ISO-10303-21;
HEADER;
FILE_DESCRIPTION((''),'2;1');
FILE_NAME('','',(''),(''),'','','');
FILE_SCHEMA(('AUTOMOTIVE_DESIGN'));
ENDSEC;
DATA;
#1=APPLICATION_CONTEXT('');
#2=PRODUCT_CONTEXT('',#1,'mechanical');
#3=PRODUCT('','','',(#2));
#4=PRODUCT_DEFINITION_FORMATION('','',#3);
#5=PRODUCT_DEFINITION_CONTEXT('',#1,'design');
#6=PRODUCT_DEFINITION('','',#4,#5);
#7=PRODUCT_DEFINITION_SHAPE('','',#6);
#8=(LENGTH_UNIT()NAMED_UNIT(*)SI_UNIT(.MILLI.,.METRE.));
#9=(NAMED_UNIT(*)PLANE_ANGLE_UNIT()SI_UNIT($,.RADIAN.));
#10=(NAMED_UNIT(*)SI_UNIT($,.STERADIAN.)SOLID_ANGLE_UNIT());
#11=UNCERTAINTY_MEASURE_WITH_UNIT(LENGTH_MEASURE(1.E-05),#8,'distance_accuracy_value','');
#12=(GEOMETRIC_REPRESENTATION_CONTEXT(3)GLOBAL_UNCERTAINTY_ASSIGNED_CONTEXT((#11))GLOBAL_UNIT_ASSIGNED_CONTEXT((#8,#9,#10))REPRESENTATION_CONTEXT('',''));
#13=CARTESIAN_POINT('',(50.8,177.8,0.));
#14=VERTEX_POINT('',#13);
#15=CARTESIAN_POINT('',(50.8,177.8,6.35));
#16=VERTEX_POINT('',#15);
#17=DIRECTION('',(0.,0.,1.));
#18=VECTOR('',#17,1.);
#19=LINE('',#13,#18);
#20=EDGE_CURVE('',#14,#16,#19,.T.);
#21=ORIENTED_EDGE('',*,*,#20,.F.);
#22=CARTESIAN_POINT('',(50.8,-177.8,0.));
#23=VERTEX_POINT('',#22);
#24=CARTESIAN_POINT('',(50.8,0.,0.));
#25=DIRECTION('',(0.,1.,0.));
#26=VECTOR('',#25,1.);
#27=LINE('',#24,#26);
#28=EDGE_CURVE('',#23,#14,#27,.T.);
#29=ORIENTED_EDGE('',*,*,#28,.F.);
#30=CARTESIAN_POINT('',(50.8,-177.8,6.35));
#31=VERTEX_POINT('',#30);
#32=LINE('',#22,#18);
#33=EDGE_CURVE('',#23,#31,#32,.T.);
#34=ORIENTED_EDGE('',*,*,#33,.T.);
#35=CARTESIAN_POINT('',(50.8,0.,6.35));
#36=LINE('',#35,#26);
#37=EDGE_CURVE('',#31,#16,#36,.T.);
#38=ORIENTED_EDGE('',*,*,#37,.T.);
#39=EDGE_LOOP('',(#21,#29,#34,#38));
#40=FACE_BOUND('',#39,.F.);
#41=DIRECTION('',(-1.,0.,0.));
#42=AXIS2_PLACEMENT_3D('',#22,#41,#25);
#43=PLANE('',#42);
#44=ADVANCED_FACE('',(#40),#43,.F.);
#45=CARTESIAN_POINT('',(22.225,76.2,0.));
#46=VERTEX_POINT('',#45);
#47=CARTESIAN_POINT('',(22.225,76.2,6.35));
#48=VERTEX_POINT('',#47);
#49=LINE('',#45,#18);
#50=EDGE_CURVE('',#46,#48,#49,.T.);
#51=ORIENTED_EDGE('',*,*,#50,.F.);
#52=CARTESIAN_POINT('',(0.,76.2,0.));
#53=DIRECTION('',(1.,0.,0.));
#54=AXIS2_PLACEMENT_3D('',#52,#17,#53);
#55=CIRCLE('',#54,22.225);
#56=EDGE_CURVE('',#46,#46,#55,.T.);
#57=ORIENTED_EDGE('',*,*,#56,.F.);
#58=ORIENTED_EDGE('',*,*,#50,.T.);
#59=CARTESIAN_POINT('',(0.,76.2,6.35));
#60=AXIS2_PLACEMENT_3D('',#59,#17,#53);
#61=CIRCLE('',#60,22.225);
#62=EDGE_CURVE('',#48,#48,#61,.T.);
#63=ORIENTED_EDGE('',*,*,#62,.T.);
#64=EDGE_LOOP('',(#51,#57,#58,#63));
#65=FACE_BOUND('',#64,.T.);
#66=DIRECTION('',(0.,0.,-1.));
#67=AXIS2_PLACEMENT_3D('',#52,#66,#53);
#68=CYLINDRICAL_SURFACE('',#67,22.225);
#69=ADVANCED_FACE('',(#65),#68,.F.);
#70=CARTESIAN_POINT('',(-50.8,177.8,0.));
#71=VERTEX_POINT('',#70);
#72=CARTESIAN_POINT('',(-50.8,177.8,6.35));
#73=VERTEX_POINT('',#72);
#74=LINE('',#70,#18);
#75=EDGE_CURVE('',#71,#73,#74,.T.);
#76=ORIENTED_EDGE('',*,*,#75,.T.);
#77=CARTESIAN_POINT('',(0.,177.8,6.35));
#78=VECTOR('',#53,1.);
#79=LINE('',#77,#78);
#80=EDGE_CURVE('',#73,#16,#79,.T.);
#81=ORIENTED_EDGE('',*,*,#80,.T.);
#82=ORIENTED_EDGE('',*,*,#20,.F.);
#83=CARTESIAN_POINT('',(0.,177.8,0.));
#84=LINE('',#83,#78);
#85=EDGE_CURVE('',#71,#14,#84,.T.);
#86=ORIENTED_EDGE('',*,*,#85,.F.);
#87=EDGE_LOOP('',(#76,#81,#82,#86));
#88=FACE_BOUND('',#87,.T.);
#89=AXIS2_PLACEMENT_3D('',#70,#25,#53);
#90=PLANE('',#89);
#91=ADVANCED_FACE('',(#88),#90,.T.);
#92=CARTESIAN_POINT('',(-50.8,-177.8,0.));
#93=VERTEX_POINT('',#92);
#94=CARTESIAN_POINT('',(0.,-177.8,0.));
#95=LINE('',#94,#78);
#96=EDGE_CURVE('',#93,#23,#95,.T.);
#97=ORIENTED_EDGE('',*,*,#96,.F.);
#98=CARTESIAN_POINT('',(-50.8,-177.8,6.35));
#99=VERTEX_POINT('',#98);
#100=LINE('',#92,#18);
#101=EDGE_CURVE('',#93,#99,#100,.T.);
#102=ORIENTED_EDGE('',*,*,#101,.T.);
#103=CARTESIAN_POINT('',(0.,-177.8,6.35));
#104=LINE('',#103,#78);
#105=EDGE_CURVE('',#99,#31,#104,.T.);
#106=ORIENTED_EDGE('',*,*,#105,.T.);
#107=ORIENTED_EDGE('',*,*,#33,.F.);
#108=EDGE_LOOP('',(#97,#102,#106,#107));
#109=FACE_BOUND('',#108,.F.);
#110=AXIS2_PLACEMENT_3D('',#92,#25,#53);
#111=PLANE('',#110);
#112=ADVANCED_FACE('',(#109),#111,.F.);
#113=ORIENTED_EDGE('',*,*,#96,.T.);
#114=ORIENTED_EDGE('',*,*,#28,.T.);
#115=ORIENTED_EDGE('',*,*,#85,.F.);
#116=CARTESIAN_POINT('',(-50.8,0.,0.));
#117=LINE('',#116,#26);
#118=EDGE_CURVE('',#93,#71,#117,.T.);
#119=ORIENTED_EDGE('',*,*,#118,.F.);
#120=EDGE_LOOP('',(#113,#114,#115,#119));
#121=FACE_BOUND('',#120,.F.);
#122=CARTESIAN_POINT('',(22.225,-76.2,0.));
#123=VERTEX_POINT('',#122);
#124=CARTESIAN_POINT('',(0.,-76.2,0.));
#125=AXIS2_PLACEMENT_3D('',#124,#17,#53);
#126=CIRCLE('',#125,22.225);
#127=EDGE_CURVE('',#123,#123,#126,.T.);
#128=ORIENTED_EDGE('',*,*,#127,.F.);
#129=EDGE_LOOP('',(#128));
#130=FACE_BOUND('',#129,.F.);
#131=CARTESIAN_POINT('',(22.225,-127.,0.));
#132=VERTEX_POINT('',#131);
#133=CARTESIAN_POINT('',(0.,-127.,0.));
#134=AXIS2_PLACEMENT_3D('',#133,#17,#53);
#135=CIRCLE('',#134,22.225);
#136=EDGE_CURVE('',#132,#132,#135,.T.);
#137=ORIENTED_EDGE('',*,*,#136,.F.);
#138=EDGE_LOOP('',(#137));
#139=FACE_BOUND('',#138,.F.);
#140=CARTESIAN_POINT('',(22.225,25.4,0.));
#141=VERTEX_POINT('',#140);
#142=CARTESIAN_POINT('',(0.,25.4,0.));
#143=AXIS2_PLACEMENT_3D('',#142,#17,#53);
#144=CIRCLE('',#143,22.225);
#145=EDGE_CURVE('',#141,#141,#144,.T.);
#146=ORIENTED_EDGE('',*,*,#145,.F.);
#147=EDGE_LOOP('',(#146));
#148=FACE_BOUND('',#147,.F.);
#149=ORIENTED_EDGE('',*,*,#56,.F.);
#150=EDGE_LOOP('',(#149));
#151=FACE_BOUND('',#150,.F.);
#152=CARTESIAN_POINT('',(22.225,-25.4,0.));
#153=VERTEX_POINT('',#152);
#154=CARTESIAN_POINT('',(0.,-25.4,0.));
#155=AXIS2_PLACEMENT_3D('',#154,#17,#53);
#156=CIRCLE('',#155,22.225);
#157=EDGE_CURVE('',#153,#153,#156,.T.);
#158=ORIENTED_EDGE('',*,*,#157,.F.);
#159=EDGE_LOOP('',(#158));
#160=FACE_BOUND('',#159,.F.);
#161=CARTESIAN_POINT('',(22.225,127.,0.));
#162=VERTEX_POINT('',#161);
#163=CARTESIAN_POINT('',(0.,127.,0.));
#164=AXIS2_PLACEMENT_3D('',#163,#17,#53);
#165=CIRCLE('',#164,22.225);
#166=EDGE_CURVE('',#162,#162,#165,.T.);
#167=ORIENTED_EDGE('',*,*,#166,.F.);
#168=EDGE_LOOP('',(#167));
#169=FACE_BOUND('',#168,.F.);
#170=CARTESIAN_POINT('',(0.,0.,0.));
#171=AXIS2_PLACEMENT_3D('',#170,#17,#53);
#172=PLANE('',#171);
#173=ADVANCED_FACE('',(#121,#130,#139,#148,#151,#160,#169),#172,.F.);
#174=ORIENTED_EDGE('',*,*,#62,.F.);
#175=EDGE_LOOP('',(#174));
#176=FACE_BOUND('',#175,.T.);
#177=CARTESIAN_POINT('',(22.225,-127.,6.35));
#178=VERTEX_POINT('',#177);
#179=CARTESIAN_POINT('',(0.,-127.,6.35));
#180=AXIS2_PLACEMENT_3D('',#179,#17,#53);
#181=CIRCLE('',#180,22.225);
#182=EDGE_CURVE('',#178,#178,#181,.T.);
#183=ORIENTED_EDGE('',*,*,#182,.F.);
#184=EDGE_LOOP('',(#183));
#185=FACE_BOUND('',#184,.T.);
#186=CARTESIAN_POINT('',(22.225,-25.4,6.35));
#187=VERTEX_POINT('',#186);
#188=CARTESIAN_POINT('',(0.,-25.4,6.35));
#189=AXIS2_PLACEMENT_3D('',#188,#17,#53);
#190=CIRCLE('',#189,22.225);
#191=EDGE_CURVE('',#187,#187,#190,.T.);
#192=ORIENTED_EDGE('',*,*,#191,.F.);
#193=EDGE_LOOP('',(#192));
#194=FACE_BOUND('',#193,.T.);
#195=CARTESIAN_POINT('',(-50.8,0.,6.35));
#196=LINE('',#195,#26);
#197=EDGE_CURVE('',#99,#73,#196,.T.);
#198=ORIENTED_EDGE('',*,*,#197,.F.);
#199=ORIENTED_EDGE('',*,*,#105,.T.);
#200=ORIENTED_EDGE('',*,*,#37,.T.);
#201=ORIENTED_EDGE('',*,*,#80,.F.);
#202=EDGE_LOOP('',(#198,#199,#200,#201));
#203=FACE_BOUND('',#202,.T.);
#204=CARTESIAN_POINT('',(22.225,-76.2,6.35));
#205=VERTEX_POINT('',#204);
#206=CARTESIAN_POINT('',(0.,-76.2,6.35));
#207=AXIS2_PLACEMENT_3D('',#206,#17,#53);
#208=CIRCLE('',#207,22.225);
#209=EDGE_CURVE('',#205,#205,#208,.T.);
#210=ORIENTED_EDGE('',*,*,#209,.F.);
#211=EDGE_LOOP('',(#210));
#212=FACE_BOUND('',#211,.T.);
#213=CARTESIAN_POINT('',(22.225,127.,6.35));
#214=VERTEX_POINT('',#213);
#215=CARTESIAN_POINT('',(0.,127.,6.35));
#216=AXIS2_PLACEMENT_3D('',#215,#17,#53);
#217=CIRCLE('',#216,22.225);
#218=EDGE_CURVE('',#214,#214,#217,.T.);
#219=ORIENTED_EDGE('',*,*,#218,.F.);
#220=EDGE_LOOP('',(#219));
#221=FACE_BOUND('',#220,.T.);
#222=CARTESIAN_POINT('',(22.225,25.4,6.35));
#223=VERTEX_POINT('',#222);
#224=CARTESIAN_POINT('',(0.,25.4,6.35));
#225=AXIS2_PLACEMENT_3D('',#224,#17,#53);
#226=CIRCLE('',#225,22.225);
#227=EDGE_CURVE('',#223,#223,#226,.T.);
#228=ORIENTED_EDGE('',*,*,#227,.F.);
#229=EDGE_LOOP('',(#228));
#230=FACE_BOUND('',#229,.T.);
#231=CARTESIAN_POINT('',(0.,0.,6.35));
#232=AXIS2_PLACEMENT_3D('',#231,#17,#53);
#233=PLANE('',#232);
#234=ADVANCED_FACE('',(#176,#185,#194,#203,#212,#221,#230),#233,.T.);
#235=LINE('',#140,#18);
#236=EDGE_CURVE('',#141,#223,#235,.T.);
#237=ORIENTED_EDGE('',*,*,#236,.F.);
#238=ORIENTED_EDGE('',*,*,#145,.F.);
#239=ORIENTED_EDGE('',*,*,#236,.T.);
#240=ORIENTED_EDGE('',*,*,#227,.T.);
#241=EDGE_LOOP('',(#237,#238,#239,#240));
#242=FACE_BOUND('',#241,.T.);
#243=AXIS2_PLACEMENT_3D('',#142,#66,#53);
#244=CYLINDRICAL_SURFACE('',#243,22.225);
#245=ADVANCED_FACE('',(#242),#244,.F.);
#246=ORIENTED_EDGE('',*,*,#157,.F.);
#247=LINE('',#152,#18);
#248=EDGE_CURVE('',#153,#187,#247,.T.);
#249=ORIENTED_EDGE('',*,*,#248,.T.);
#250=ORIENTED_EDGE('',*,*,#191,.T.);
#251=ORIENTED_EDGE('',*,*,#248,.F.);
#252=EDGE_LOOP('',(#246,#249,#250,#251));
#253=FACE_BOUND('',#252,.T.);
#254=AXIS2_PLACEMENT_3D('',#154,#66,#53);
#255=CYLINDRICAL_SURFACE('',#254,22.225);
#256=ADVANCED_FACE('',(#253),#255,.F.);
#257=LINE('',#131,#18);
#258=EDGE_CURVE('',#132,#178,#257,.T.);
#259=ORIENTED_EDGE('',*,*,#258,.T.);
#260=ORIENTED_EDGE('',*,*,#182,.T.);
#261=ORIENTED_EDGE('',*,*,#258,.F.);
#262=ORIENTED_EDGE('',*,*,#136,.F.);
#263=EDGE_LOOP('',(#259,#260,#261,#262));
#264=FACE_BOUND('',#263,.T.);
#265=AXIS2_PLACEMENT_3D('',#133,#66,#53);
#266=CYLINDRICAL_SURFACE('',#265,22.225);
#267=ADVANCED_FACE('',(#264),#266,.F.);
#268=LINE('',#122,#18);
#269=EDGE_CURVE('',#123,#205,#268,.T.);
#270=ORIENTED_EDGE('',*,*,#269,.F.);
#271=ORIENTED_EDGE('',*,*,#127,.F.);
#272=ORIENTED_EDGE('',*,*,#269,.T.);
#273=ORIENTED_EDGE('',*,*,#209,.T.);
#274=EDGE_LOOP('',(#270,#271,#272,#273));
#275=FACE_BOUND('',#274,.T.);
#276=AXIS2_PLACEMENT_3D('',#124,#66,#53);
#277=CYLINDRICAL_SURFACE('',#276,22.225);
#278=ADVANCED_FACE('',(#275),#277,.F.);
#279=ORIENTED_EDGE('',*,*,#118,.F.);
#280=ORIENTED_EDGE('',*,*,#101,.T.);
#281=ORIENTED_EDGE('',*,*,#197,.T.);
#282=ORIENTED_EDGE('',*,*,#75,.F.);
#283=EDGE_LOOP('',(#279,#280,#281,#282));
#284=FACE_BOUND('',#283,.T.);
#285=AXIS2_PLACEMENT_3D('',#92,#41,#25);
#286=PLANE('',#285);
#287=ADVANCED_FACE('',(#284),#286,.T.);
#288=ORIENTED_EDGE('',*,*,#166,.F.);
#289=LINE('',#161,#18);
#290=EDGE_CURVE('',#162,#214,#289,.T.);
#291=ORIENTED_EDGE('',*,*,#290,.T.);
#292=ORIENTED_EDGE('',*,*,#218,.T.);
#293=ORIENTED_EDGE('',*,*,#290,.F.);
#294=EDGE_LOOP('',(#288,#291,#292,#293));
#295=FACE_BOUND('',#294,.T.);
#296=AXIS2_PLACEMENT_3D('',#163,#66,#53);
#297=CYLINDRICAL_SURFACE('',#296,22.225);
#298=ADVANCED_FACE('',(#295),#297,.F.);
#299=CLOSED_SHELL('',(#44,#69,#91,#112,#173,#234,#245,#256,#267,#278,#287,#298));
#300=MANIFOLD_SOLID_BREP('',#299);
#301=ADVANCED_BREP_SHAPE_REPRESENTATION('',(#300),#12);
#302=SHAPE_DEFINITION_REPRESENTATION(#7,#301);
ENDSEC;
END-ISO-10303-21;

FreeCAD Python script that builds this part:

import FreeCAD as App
import Part
import Sketcher

V = App.Vector
Q = App.Units.Quantity

doc = App.newDocument("Part")
body = doc.addObject("PartDesign::Body", "Body")

# Sketch on XY plane
sketch1 = body.newObject("Sketcher::SketchObject", "Sketch")
sketch1.AttachmentSupport = (doc.getObject("XY_Plane"), [""])
sketch1.MapMode = "FlatFace"
sketch1.addGeometry([
    Part.LineSegment(V(-50.8, 177.8, 0), V(-50.8, -177.8, 0)),  # 0
    Part.LineSegment(V(-50.8, -177.8, 0), V(50.8, -177.8, 0)),  # 1
    Part.LineSegment(V(50.8, -177.8, 0), V(50.8, 177.8, 0)),  # 2
    Part.LineSegment(V(50.8, 177.8, 0), V(-50.8, 177.8, 0)),  # 3
    Part.Circle(V(0, -127, 0), V(0, 0, 1), 22.225),  # 4
    Part.Circle(V(0, -76.2, 0), V(0, 0, 1), 22.225),  # 5
    Part.Circle(V(0, -25.4, 0), V(0, 0, 1), 22.225),  # 6
    Part.Circle(V(0, 25.4, 0), V(0, 0, 1), 22.225),  # 7
    Part.Circle(V(0, 76.2, 0), V(0, 0, 1), 22.225),  # 8
    Part.Circle(V(0, 127, 0), V(0, 0, 1), 22.225),  # 9
], False)
sketch1.addConstraint([
    Sketcher.Constraint("Coincident", 0, 2, 1, 1),
    Sketcher.Constraint("Coincident", 1, 2, 2, 1),
    Sketcher.Constraint("Coincident", 2, 2, 3, 1),
    Sketcher.Constraint("Coincident", 3, 2, 0, 1),
    Sketcher.Constraint("Vertical", 0),
    Sketcher.Constraint("Horizontal", 1),
    Sketcher.Constraint("Vertical", 2),
    Sketcher.Constraint("Horizontal", 3),
    Sketcher.Constraint("Equal", 4, 5),
    Sketcher.Constraint("Equal", 5, 6),
    Sketcher.Constraint("Equal", 6, 7),
    Sketcher.Constraint("Equal", 7, 8),
    Sketcher.Constraint("Equal", 8, 9),
    Sketcher.Constraint("Symmetric", 6, 3, 7, 3, -1, 1),
    Sketcher.Constraint("Symmetric", 5, 3, 8, 3, -1, 1),
    Sketcher.Constraint("Symmetric", 4, 3, 9, 3, -1, 1),
    Sketcher.Constraint("Symmetric", 0, 2, 2, 2, -1, 1),
    Sketcher.Constraint("PointOnObject", 4, 3, -2),
    Sketcher.Constraint("PointOnObject", 5, 3, -2),
    Sketcher.Constraint("PointOnObject", 6, 3, -2),
    Sketcher.Constraint("Diameter", 4, Q("1.75 in")),
    Sketcher.Constraint("DistanceX", 1, 1, 1, 2, Q("4 in")),
    Sketcher.Constraint("DistanceY", 0, 2, 0, 1, Q("14 in")),
    Sketcher.Constraint("DistanceY", 4, 3, -1, 1, Q("5 in")),
    Sketcher.Constraint("DistanceY", 5, 3, -1, 1, Q("3 in")),
    Sketcher.Constraint("DistanceY", 6, 3, -1, 1, Q("1 in")),
])
pad1 = body.newObject("PartDesign::Pad", "Pad")
pad1.Profile = sketch1
pad1.Length = Q("0.25 in")

doc.recompute()
